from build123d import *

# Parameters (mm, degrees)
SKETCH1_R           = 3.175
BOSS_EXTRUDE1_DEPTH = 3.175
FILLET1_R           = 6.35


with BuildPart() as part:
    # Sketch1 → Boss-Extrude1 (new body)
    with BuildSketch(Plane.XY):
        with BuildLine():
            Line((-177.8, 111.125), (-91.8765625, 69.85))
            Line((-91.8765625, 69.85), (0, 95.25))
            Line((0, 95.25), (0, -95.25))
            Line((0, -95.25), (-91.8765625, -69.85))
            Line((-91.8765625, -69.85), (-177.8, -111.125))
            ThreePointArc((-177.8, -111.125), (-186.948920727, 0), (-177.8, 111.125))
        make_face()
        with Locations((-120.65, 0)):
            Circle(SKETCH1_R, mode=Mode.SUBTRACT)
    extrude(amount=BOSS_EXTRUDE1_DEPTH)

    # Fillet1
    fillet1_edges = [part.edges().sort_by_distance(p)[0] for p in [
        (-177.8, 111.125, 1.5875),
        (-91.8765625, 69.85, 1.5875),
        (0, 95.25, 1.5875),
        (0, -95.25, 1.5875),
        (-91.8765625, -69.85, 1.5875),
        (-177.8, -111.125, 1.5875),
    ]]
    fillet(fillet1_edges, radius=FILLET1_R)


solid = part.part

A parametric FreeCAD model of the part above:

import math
import FreeCAD as App
import Part
import Sketcher

V = App.Vector
Q = App.Units.Quantity


def edges_at(feature, points):
    """Names of the edges that pass closest to the given points."""
    edges = feature.Shape.Edges
    near = lambda p: min(range(len(edges)), key=lambda i: edges[i].distToShape(Part.Vertex(*p))[0])
    return sorted({f"Edge{near(p) + 1}" for p in points})

doc = App.newDocument("Part")
params = doc.addObject("Spreadsheet::Sheet", "Params")
for row, (alias, value) in enumerate([
    ("sketch1_diameter", "0.25 in"),
    ("sketch1_radius", "26.75 in"),
    ("sketch1_height", "7.5 in"),
    ("pad1_length", "0.125 in"),
    ("fillet_radius", "0.25 in"),
], start=1):
    params.set(f"A{row}", alias)
    params.set(f"B{row}", "=" + value)
    params.setAlias(f"B{row}", alias)

body = doc.addObject("PartDesign::Body", "Body")

sketch1 = body.newObject("Sketcher::SketchObject", "Sketch")
sketch1.AttachmentSupport = (doc.getObject("XY_Plane"), [""])
sketch1.MapMode = "FlatFace"
sketch1.addGeometry(Part.LineSegment(V(-91.9, 69.8, 0), V(-177.8, 111.1, 0)), False)
sketch1.addGeometry(Part.ArcOfCircle(Part.Circle(V(492.5, 0, 0), V(0, 0, 1), 679.4), math.radians(170.59), math.radians(189.41)), False)
sketch1.addGeometry(Part.LineSegment(V(-177.8, -111.1, 0), V(-91.9, -69.8, 0)), False)
sketch1.addGeometry(Part.LineSegment(V(-91.9, -69.8, 0), V(0, -95.2, 0)), False)
sketch1.addGeometry(Part.LineSegment(V(0, -95.2, 0), V(0, 95.2, 0)), False)
sketch1.addGeometry(Part.LineSegment(V(0, 95.2, 0), V(-91.9, 69.8, 0)), False)
sketch1.addGeometry(Part.Circle(V(-120.7, 0, 0), V(0, 0, 1), 3.2), False)
sketch1.addConstraint(Sketcher.Constraint("Coincident", 0, 2, 1, 1))
sketch1.addConstraint(Sketcher.Constraint("Coincident", 1, 2, 2, 1))
sketch1.addConstraint(Sketcher.Constraint("Coincident", 2, 2, 3, 1))
sketch1.addConstraint(Sketcher.Constraint("Coincident", 3, 2, 4, 1))
sketch1.addConstraint(Sketcher.Constraint("Coincident", 4, 2, 5, 1))
sketch1.addConstraint(Sketcher.Constraint("Coincident", 5, 2, 0, 1))
sketch1.addConstraint(Sketcher.Constraint("Vertical", 4))
sketch1.addConstraint(Sketcher.Constraint("Symmetric", 3, 2, 4, 2, -1, 1))
sketch1.addConstraint(Sketcher.Constraint("Symmetric", 2, 2, 5, 2, -1))
sketch1.addConstraint(Sketcher.Constraint("PointOnObject", 1, 3, -1))
sketch1.addConstraint(Sketcher.Constraint("PointOnObject", 6, 3, -1))
sketch1.addConstraint(Sketcher.Constraint("Vertical", 0, 2, 1, 2))
sketch1.addConstraint(Sketcher.Constraint("Equal", 2, 3))
sketch1.addConstraint(Sketcher.Constraint("Diameter", 6, Q("0.25 in")))
sketch1.addConstraint(Sketcher.Constraint("Radius", 1, Q("26.75 in")))
sketch1.addConstraint(Sketcher.Constraint("DistanceY", 4, 1, 4, 2, Q("7.5 in")))
sketch1.addConstraint(Sketcher.Constraint("DistanceX", 0, 2, -1, 1, Q("7 in")))
sketch1.addConstraint(Sketcher.Constraint("DistanceY", 3, 2, 2, 2, Q("1 in")))
sketch1.addConstraint(Sketcher.Constraint("DistanceX", 6, 3, -1, 1, Q("4.75 in")))
sketch1.addConstraint(Sketcher.Constraint("DistanceY", -1, 1, 0, 2, Q("4.375 in")))
sketch1.setExpression("Constraints[13]", "Params.sketch1_diameter")
sketch1.setExpression("Constraints[14]", "Params.sketch1_radius")
sketch1.setExpression("Constraints[15]", "Params.sketch1_height")
pad1 = body.newObject("PartDesign::Pad", "Pad")
pad1.Profile = sketch1
pad1.setExpression("Length", "Params.pad1_length")
doc.recompute()

fillet = body.newObject("PartDesign::Fillet", "Fillet")
fillet.Base = (pad1, edges_at(pad1, [
    (-177.8, 111.125, 1.587),
    (-91.877, 69.85, 1.587),
    (0, 95.25, 1.587),
    (0, -95.25, 1.587),
    (-91.877, -69.85, 1.587),
    (-177.8, -111.125, 1.587),
]))
fillet.setExpression("Radius", "Params.fillet_radius")

doc.recompute()
